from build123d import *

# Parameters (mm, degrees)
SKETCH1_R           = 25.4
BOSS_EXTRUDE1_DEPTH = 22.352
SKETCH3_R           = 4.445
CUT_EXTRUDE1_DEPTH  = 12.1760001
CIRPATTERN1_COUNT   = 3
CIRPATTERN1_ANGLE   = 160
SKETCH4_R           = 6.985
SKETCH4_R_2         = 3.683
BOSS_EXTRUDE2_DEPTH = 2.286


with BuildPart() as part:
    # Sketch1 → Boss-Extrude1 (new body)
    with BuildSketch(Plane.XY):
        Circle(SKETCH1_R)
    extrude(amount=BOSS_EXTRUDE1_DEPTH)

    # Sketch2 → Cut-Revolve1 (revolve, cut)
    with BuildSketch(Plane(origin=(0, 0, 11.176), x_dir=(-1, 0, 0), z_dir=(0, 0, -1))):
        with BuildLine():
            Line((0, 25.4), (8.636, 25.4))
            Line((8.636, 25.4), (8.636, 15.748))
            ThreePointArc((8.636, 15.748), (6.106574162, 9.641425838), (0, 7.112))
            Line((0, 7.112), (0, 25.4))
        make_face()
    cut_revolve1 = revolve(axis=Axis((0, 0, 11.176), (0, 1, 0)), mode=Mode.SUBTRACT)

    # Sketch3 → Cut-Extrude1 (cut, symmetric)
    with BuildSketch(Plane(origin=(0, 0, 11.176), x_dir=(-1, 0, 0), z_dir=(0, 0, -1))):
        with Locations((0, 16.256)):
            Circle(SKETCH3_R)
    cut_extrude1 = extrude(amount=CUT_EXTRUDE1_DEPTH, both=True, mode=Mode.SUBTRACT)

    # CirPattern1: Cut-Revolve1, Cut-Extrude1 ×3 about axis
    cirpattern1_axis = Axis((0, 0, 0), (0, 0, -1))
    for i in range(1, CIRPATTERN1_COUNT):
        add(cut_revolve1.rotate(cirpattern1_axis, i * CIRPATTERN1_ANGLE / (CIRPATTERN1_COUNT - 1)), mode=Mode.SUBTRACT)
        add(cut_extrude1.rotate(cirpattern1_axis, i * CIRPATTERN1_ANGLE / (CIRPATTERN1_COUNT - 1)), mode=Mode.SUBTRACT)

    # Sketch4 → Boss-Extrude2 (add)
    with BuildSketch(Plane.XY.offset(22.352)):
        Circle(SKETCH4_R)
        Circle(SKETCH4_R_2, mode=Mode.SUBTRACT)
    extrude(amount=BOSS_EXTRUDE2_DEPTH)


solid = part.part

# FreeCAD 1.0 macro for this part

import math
import FreeCAD as App
import Part
import Sketcher

V = App.Vector
Q = App.Units.Quantity

doc = App.newDocument("Part")
params = doc.addObject("Spreadsheet::Sheet", "Params")
for row, (alias, value) in enumerate([
    ("sketch1_diameter", "2 in"),
    ("pad1_length", "0.88 in"),
    ("sketch2_radius", "0.34 in"),
    ("sketch2_height", "0.72 in"),
    ("groove_angle", "360 deg"),
    ("sketch3_diameter", "0.35 in"),
    ("pocket1_length", "24.352 mm"),
    ("sketch4_diameter", "0.55 in"),
    ("sketch4_diameter2", "0.29 in"),
    ("pad2_length", "0.09 in"),
], start=1):
    params.set(f"A{row}", alias)
    params.set(f"B{row}", "=" + value)
    params.setAlias(f"B{row}", alias)

body = doc.addObject("PartDesign::Body", "Body")

# Sketch on XY plane
sketch1 = body.newObject("Sketcher::SketchObject", "Sketch")
sketch1.AttachmentSupport = (doc.getObject("XY_Plane"), [""])
sketch1.MapMode = "FlatFace"
sketch1.addGeometry(Part.Circle(V(0, 0, 0), V(0, 0, 1), 25), False)
sketch1.addConstraint(Sketcher.Constraint("Coincident", 0, 3, -1, 1))
sketch1.addConstraint(Sketcher.Constraint("Diameter", 0, Q("2 in")))
sketch1.setExpression("Constraints[1]", "Params.sketch1_diameter")
pad1 = body.newObject("PartDesign::Pad", "Pad")
pad1.Profile = sketch1
pad1.setExpression("Length", "Params.pad1_length")

# Sketch on XY plane
sketch2 = body.newObject("Sketcher::SketchObject", "Sketch001")
sketch2.AttachmentSupport = (doc.getObject("XY_Plane"), [""])
sketch2.MapMode = "FlatFace"
sketch2.AttachmentOffset = App.Placement(V(0, 0, 0.44 * 25.4), App.Rotation())
sketch2.addGeometry(Part.LineSegment(V(-9, 25, 0), V(0, 25, 0)), False)
sketch2.addGeometry(Part.LineSegment(V(0, 25, 0), V(0, 7, 0)), False)
sketch2.addGeometry(Part.ArcOfCircle(Part.Circle(V(0, 16, 0), V(0, 0, 1), 9), math.radians(-180), math.radians(-90)), False)
sketch2.addGeometry(Part.LineSegment(V(-9, 16, 0), V(-9, 25, 0)), False)
sketch2.addConstraint(Sketcher.Constraint("Coincident", 0, 2, 1, 1))
sketch2.addConstraint(Sketcher.Constraint("Coincident", 1, 2, 2, 2))
sketch2.addConstraint(Sketcher.Constraint("Tangent", 2, 1, 3, 1))
sketch2.addConstraint(Sketcher.Constraint("Coincident", 3, 2, 0, 1))
sketch2.addConstraint(Sketcher.Constraint("Horizontal", 0))
sketch2.addConstraint(Sketcher.Constraint("Vertical", 1))
sketch2.addConstraint(Sketcher.Constraint("Vertical", 3))
sketch2.addConstraint(Sketcher.Constraint("PointOnObject", 2, 3, -2))
sketch2.addConstraint(Sketcher.Constraint("PointOnObject", 0, 2, -2))
sketch2.addConstraint(Sketcher.Constraint("Radius", 2, Q("0.34 in")))
sketch2.addConstraint(Sketcher.Constraint("DistanceY", -1, 1, 0, 2, Q("1 in")))
sketch2.addConstraint(Sketcher.Constraint("DistanceY", 1, 2, 1, 1, Q("0.72 in")))
sketch2.setExpression("Constraints[9]", "Params.sketch2_radius")
sketch2.setExpression("Constraints[11]", "Params.sketch2_height")
groove = body.newObject("PartDesign::Groove", "Groove")
groove.Profile = sketch2
groove.ReferenceAxis = (sketch2, ["V_Axis"])
groove.setExpression("Angle", "Params.groove_angle")

# Sketch on XY plane
sketch3 = body.newObject("Sketcher::SketchObject", "Sketch002")
sketch3.AttachmentSupport = (doc.getObject("XY_Plane"), [""])
sketch3.MapMode = "FlatFace"
sketch3.AttachmentOffset = App.Placement(V(0, 0, 0.44 * 25.4), App.Rotation())
sketch3.addGeometry(Part.Circle(V(0, 16.3, 0), V(0, 0, 1), 4.4), False)
sketch3.addConstraint(Sketcher.Constraint("PointOnObject", 0, 3, -2))
sketch3.addConstraint(Sketcher.Constraint("Diameter", 0, Q("0.35 in")))
sketch3.addConstraint(Sketcher.Constraint("DistanceY", -1, 1, 0, 3, Q("0.64 in")))
sketch3.setExpression("Constraints[1]", "Params.sketch3_diameter")
pocket1 = body.newObject("PartDesign::Pocket", "Pocket")
pocket1.Profile = sketch3
pocket1.setExpression("Length", "Params.pocket1_length")
pocket1.Midplane = True
doc.recompute()

polarpattern = body.newObject("PartDesign::PolarPattern", "PolarPattern")
polarpattern.Originals = [groove, pocket1]
polarpattern.Axis = (doc.getObject("Z_Axis"), [""])
polarpattern.Angle = 160
polarpattern.Occurrences = 3
polarpattern.Reversed = True
body.Tip = polarpattern

# Sketch on XY plane
sketch4 = body.newObject("Sketcher::SketchObject", "Sketch003")
sketch4.AttachmentSupport = (doc.getObject("XY_Plane"), [""])
sketch4.MapMode = "FlatFace"
sketch4.AttachmentOffset = App.Placement(V(0, 0, 0.88 * 25.4), App.Rotation())
sketch4.addGeometry(Part.Circle(V(0, 0, 0), V(0, 0, 1), 7), False)
sketch4.addGeometry(Part.Circle(V(0, 0, 0), V(0, 0, 1), 3.7), False)
sketch4.addConstraint(Sketcher.Constraint("Coincident", 0, 3, -1, 1))
sketch4.addConstraint(Sketcher.Constraint("Coincident", 1, 3, -1, 1))
sketch4.addConstraint(Sketcher.Constraint("Diameter", 0, Q("0.55 in")))
sketch4.addConstraint(Sketcher.Constraint("Diameter", 1, Q("0.29 in")))
sketch4.setExpression("Constraints[2]", "Params.sketch4_diameter")
sketch4.setExpression("Constraints[3]", "Params.sketch4_diameter2")
pad2 = body.newObject("PartDesign::Pad", "Pad001")
pad2.Profile = sketch4
pad2.setExpression("Length", "Params.pad2_length")

doc.recompute()
